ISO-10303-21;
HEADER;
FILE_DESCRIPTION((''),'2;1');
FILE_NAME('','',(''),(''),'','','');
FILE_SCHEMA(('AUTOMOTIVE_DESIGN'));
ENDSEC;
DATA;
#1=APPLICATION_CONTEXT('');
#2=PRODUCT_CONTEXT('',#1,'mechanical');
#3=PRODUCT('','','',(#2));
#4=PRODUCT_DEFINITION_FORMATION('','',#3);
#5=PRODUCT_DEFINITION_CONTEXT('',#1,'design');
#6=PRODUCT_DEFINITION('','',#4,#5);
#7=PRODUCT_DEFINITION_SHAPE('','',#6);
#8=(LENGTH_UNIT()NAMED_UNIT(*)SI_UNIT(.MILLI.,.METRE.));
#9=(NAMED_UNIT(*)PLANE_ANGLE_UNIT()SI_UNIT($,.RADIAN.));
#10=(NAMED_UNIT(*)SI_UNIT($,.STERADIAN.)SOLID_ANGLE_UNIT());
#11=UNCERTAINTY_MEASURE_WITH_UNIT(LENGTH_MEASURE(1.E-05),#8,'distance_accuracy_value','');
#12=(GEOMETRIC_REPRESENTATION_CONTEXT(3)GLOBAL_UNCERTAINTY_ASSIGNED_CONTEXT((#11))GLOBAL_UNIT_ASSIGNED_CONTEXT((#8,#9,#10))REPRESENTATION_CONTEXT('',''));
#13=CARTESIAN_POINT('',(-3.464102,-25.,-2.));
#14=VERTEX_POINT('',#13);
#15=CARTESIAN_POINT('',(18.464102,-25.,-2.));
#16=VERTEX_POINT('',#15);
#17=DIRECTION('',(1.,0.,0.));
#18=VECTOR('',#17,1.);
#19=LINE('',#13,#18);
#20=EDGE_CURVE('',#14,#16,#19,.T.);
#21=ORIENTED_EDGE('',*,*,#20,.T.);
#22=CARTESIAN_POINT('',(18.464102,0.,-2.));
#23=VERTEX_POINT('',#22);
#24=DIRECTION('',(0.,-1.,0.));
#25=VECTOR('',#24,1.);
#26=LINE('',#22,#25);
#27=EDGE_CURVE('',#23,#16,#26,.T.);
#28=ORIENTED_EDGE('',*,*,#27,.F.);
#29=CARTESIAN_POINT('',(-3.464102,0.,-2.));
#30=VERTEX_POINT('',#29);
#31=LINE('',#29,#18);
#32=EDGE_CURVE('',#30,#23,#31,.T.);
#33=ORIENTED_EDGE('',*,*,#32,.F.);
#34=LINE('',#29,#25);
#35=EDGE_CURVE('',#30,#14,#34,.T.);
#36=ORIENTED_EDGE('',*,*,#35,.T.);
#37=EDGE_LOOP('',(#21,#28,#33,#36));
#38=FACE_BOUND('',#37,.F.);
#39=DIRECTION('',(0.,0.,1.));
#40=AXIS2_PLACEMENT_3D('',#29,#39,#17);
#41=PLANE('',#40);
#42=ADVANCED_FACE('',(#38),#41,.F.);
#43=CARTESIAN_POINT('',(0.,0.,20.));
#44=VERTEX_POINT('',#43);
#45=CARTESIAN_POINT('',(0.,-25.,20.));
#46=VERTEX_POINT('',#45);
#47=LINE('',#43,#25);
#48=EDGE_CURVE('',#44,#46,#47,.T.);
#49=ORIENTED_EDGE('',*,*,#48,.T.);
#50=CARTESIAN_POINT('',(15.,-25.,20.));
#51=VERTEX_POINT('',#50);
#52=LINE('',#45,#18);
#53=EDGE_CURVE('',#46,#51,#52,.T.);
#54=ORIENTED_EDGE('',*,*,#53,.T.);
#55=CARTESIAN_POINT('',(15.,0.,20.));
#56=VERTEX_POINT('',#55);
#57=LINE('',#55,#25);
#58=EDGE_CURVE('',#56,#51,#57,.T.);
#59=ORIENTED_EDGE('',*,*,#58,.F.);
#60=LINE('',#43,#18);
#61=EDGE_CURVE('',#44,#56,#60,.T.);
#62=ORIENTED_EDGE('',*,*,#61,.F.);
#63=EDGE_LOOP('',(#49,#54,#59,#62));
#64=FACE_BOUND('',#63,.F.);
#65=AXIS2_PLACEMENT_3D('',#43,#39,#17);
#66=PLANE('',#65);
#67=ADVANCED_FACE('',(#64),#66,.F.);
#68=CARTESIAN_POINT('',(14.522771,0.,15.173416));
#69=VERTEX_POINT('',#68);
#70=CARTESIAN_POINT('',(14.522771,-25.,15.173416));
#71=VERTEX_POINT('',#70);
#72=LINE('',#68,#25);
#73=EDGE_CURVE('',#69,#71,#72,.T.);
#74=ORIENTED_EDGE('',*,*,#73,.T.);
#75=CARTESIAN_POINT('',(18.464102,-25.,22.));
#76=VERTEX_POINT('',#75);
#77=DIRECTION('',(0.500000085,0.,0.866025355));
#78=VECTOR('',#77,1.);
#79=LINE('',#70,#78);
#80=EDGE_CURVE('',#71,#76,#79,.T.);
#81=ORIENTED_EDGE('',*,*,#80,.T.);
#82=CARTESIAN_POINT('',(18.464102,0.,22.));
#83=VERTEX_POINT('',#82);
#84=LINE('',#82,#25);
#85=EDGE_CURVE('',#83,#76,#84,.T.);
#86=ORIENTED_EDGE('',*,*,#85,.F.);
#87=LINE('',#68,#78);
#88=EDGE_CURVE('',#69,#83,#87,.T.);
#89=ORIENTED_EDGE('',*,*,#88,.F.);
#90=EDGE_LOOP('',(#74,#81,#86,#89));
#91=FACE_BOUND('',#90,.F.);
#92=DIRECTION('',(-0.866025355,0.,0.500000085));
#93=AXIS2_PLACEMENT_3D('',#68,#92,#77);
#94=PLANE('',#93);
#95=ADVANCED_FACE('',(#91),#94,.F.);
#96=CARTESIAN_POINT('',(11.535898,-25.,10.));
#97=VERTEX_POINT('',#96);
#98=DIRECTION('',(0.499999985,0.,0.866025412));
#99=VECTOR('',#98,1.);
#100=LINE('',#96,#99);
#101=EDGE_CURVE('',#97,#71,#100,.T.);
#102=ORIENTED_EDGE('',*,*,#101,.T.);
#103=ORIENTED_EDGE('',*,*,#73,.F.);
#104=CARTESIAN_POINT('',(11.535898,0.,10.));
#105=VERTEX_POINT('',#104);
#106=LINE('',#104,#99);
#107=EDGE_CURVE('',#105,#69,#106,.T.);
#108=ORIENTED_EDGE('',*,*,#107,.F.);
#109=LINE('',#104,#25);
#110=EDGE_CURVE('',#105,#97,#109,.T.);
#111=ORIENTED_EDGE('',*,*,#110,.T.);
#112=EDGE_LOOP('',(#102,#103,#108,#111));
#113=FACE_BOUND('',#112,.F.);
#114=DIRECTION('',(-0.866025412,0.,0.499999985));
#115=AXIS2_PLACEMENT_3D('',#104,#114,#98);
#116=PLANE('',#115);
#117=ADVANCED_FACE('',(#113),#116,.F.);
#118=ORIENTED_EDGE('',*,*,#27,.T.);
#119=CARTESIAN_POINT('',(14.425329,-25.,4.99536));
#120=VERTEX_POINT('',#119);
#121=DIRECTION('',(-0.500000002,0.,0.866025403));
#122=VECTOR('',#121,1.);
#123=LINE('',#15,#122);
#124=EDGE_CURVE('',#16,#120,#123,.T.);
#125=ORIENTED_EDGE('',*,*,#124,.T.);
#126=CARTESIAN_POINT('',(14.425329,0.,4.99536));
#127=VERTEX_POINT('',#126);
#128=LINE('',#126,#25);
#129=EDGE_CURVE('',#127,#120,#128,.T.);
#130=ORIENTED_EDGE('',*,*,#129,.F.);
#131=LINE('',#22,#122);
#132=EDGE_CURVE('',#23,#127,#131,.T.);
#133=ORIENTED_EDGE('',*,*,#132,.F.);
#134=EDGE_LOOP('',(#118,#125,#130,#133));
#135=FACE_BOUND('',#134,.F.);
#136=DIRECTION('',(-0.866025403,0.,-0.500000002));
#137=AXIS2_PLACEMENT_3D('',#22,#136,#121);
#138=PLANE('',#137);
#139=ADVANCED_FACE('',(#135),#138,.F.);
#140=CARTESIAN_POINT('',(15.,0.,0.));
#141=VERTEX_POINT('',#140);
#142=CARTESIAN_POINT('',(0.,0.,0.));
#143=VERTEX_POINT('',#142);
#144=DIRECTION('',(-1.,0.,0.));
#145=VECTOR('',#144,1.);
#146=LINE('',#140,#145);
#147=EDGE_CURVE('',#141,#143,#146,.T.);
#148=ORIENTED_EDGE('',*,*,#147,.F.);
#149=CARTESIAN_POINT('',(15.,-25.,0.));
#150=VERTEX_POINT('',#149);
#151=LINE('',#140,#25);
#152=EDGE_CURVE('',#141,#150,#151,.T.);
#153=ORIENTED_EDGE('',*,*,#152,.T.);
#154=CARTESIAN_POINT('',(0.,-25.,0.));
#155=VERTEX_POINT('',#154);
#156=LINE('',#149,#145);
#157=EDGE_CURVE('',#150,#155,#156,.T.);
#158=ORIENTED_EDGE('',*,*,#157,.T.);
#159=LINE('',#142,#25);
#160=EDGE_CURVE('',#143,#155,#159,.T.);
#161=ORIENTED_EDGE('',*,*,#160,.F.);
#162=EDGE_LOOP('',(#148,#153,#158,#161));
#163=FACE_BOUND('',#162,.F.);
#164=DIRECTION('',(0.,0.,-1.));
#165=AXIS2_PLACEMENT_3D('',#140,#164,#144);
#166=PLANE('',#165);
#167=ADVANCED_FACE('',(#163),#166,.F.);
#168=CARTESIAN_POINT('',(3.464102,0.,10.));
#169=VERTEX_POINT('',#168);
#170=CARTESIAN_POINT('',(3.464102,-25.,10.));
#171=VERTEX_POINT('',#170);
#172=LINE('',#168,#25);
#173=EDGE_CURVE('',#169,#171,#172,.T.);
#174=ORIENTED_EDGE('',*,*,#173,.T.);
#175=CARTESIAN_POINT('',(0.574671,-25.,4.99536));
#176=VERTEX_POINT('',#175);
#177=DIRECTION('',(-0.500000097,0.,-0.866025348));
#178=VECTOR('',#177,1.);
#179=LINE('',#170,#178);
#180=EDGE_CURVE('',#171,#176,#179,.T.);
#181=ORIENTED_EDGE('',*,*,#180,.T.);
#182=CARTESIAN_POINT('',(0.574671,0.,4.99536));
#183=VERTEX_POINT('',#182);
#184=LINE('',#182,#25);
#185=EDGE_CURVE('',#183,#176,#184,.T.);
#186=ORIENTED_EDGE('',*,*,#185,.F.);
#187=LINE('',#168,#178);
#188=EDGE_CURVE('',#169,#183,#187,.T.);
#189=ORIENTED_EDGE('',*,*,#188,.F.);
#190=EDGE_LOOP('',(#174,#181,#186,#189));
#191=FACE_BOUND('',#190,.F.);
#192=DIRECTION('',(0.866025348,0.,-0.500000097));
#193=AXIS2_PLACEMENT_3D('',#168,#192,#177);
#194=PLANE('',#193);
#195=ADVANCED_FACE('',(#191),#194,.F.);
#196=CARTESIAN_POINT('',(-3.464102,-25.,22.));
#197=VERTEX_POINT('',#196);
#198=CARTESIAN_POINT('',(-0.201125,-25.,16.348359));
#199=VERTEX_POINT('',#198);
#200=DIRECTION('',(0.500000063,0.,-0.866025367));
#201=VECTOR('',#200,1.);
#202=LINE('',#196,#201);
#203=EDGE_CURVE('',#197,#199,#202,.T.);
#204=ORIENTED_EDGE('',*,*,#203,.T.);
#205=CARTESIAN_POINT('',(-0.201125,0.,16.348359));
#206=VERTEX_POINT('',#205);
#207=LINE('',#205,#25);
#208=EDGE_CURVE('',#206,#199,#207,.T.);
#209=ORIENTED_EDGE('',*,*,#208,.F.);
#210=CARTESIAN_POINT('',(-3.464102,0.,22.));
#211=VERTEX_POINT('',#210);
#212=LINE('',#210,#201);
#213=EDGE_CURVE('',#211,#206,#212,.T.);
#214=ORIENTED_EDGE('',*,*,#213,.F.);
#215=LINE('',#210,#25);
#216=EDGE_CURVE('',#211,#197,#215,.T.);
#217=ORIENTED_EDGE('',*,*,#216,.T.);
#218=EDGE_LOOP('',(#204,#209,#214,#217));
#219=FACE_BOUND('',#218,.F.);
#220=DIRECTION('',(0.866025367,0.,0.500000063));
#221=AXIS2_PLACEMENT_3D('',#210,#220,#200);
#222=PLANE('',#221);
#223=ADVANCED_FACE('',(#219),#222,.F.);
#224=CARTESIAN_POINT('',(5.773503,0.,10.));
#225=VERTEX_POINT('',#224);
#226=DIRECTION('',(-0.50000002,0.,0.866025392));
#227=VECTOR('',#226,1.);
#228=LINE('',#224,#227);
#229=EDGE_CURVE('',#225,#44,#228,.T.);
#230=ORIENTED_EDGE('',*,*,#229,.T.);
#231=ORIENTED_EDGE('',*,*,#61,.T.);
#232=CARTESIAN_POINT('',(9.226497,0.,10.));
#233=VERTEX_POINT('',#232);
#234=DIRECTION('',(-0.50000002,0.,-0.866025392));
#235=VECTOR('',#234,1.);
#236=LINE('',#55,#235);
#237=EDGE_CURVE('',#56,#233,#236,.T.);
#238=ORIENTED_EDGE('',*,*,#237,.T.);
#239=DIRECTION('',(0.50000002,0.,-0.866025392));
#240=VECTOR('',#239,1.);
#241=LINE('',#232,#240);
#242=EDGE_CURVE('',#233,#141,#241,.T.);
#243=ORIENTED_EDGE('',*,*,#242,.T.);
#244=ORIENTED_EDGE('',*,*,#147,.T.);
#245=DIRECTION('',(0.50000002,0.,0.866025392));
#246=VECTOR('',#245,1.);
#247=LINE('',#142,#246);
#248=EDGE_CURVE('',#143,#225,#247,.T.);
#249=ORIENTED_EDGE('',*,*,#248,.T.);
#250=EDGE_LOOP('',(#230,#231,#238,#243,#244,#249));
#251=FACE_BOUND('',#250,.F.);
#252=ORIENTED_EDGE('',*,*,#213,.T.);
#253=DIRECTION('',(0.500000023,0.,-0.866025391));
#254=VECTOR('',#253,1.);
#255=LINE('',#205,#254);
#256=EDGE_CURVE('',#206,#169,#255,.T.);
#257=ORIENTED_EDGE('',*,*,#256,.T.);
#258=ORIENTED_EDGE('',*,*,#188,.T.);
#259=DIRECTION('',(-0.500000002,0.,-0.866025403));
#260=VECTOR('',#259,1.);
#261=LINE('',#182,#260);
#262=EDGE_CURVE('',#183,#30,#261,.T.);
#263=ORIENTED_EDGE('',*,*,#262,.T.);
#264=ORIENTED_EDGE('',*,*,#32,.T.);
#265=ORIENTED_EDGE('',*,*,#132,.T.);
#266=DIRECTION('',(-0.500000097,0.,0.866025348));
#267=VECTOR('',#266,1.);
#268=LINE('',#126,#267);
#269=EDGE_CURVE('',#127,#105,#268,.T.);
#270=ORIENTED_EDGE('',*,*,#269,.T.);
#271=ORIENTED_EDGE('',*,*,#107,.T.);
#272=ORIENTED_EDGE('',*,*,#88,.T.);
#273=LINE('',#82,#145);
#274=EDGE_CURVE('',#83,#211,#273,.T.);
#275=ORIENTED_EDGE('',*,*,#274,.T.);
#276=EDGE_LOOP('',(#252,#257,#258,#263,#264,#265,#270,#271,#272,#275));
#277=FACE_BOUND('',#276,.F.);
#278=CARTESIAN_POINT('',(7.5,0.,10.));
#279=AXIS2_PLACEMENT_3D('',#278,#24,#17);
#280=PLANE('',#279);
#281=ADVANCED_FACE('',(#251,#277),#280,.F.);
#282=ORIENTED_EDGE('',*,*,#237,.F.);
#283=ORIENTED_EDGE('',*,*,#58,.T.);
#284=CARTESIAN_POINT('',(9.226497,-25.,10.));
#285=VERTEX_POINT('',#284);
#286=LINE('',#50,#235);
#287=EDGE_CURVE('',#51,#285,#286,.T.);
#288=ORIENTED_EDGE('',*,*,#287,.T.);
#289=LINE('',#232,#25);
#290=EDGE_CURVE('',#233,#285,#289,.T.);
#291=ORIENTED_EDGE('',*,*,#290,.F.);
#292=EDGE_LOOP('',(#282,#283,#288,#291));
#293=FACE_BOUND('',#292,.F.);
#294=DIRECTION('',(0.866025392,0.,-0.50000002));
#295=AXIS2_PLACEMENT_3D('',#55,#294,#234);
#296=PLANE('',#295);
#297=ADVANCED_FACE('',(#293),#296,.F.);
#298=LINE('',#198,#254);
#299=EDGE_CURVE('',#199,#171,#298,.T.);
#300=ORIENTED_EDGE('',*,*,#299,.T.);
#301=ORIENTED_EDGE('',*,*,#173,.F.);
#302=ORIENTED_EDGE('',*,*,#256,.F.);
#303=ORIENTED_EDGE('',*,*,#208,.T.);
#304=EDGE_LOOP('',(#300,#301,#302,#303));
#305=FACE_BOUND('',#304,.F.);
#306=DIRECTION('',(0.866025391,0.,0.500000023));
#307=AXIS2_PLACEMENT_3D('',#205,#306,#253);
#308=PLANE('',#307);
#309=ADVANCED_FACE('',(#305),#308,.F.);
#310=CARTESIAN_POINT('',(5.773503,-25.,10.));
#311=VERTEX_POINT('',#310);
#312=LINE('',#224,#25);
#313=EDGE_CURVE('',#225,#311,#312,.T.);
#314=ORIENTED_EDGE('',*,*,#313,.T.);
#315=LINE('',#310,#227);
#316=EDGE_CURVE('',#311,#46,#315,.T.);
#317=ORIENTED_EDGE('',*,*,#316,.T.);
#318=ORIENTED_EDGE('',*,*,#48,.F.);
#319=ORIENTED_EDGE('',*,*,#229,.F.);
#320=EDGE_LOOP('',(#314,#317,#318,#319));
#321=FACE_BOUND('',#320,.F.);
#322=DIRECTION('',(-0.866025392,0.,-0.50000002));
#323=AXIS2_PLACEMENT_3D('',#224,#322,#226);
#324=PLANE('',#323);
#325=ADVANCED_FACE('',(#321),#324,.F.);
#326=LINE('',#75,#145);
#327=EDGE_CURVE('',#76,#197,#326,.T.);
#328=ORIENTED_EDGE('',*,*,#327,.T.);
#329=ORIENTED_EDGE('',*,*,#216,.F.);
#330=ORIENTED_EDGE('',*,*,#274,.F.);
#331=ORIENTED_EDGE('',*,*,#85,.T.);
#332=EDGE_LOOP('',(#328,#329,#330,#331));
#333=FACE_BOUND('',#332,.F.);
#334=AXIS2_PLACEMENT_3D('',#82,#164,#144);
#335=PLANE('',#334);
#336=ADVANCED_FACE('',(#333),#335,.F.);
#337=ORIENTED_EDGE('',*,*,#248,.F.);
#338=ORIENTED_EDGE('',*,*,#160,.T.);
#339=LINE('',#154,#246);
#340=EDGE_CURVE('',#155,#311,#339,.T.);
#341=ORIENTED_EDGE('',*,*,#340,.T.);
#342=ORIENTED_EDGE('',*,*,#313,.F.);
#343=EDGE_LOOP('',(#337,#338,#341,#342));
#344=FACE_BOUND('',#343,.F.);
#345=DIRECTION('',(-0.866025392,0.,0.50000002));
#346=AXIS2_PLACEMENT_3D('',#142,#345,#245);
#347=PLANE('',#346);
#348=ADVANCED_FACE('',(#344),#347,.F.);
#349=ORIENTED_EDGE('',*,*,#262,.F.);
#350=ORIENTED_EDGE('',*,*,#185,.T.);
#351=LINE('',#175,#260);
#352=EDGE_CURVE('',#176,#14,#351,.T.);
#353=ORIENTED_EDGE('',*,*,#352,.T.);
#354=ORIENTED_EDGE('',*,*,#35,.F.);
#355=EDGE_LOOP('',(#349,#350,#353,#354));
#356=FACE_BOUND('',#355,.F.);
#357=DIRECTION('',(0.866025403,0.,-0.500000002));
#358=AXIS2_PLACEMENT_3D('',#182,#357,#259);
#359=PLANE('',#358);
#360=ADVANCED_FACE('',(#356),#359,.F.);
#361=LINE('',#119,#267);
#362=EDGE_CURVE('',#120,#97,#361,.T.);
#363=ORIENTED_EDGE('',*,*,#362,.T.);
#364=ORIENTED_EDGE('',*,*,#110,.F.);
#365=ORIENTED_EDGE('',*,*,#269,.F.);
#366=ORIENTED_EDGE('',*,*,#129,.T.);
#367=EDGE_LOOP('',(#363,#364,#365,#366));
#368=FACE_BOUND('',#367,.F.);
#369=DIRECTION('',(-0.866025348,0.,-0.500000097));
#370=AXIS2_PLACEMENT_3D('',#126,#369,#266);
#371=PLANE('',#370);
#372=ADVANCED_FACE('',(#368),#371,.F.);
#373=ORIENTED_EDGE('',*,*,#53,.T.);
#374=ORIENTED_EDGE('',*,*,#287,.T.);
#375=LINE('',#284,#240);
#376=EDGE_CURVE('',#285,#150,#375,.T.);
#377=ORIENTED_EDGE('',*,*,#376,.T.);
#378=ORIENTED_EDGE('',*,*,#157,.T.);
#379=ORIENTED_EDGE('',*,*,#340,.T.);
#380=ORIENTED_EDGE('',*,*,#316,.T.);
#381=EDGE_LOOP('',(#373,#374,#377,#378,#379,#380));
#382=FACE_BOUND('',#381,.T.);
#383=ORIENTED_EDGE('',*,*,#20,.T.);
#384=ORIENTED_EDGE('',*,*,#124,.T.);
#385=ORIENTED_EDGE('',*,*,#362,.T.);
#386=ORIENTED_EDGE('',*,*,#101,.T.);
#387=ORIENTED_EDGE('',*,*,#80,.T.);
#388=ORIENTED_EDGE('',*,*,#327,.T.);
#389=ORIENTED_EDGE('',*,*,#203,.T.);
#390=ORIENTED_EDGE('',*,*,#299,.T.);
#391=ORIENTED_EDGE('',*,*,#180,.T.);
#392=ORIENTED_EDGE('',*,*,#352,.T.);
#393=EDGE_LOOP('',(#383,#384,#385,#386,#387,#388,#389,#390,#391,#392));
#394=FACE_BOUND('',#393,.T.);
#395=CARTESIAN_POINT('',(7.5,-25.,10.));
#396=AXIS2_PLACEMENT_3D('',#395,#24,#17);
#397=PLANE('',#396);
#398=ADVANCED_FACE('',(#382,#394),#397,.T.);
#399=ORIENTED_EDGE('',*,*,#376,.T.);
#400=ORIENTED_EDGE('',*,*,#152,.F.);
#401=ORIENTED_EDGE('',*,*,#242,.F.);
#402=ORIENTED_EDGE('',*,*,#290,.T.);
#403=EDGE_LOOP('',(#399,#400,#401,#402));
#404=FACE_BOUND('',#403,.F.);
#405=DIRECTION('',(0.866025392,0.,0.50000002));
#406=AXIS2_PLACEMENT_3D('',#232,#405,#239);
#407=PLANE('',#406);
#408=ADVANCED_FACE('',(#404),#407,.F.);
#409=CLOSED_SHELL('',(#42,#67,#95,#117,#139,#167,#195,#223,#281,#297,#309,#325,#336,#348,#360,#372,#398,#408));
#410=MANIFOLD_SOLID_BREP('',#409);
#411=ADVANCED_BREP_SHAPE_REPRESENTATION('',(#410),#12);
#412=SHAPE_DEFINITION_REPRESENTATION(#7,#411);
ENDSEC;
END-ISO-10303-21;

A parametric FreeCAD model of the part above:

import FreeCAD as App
import Part
import Sketcher
Q = App.Units.Quantity


def add_polygon(sketch, points):
    """Adds a closed chain of lines whose ends are joined by coincident constraints."""
    first, n = sketch.GeometryCount, len(points)
    for a, b in zip(points, points[1:] + points[:1]):
        sketch.addGeometry(Part.LineSegment(App.Vector(*a, 0), App.Vector(*b, 0)), False)
    for i in range(n):
        sketch.addConstraint(Sketcher.Constraint("Coincident", first + i, 2, first + (i + 1) % n, 1))

doc = App.newDocument("Part")
params = doc.addObject("Spreadsheet::Sheet", "Params")
for row, (alias, value) in enumerate([
    ("sketch1_width", "15 mm"),
    ("pad1_length", "25 mm"),
], start=1):
    params.set(f"A{row}", alias)
    params.set(f"B{row}", "=" + value)
    params.setAlias(f"B{row}", alias)

body = doc.addObject("PartDesign::Body", "Body")

sketch1 = body.newObject("Sketcher::SketchObject", "Sketch")
sketch1.AttachmentSupport = (doc.getObject("XZ_Plane"), [""])
sketch1.MapMode = "FlatFace"
add_polygon(sketch1, [(3, 10), (1, 5), (-3, -2), (18, -2), (14, 5), (12, 10), (15, 15), (18, 22), (-3, 22), (0, 16)])
add_polygon(sketch1, [(9, 10), (15, 0), (0, 0), (6, 10), (0, 20), (15, 20)])
sketch1.addConstraint(Sketcher.Constraint("Horizontal", 2))
sketch1.addConstraint(Sketcher.Constraint("Horizontal", 7))
sketch1.addConstraint(Sketcher.Constraint("Horizontal", 11))
sketch1.addConstraint(Sketcher.Constraint("Horizontal", 14))
sketch1.addConstraint(Sketcher.Constraint("Coincident", 11, 2, -1, 1))
sketch1.addConstraint(Sketcher.Constraint("PointOnObject", 13, 2, -2))
sketch1.addConstraint(Sketcher.Constraint("Parallel", 0, 1))
sketch1.addConstraint(Sketcher.Constraint("Parallel", 3, 4))
sketch1.addConstraint(Sketcher.Constraint("Parallel", 1, 5))
sketch1.addConstraint(Sketcher.Constraint("Parallel", 5, 6))
sketch1.addConstraint(Sketcher.Constraint("Parallel", 4, 8))
sketch1.addConstraint(Sketcher.Constraint("Parallel", 8, 9))
sketch1.addConstraint(Sketcher.Constraint("Parallel", 9, 10))
sketch1.addConstraint(Sketcher.Constraint("Parallel", 6, 12))
sketch1.addConstraint(Sketcher.Constraint("Parallel", 10, 13))
sketch1.addConstraint(Sketcher.Constraint("Parallel", 12, 15))
sketch1.addConstraint(Sketcher.Constraint("Horizontal", 0, 2, 3, 2))
sketch1.addConstraint(Sketcher.Constraint("Horizontal", 4, 2, 9, 2))
sketch1.addConstraint(Sketcher.Constraint("Horizontal", 9, 2, 12, 2))
sketch1.addConstraint(Sketcher.Constraint("Horizontal", 12, 2, 15, 2))
sketch1.addConstraint(Sketcher.Constraint("Vertical", 2, 2, 6, 2))
sketch1.addConstraint(Sketcher.Constraint("Vertical", 1, 2, 7, 2))
sketch1.addConstraint(Sketcher.Constraint("DistanceX", 11, 2, 11, 1, Q("15 mm")))
sketch1.addConstraint(Sketcher.Constraint("Angle", 0, Q("-120.000006 deg")))
sketch1.addConstraint(Sketcher.Constraint("DistanceY", 1, 2, -1, 1, Q("2 mm")))
sketch1.addConstraint(Sketcher.Constraint("DistanceY", -1, 1, 4, 2, Q("10 mm")))
sketch1.addConstraint(Sketcher.Constraint("DistanceX", 1, 2, 4, 2, Q("15 mm")))
sketch1.addConstraint(Sketcher.Constraint("DistanceY", 0, 2, 8, 2, Q("11.352999 mm")))
sketch1.addConstraint(Sketcher.Constraint("DistanceX", 1, 2, -1, 1, Q("3.464102 mm")))
sketch1.addConstraint(Sketcher.Constraint("DistanceX", 0, 2, 5, 2, Q("13.9481 mm")))
sketch1.addConstraint(Sketcher.Constraint("Distance", 0, Q("5.778861 mm")))
sketch1.setExpression("Constraints[38]", "Params.sketch1_width")
pad1 = body.newObject("PartDesign::Pad", "Pad")
pad1.Profile = sketch1
pad1.setExpression("Length", "Params.pad1_length")

doc.recompute()
